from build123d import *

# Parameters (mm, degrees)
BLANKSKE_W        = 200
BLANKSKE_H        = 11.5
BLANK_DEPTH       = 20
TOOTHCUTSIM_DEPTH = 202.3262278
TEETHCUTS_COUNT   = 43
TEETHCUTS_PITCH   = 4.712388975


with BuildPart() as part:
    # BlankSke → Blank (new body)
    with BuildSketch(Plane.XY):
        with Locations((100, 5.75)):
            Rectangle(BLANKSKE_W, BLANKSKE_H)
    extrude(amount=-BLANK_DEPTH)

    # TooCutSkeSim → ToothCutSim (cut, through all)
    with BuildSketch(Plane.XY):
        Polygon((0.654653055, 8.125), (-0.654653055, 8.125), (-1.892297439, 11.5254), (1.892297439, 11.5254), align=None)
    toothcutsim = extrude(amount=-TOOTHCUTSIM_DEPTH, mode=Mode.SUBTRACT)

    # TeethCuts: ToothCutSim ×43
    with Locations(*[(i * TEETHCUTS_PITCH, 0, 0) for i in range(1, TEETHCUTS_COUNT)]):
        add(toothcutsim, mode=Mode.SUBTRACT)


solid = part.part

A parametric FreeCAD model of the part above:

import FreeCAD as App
import Part
import Sketcher

V = App.Vector
Q = App.Units.Quantity


def add_polygon(sketch, points):
    """Adds a closed chain of lines whose ends are joined by coincident constraints."""
    first, n = sketch.GeometryCount, len(points)
    for a, b in zip(points, points[1:] + points[:1]):
        sketch.addGeometry(Part.LineSegment(App.Vector(*a, 0), App.Vector(*b, 0)), False)
    for i in range(n):
        sketch.addConstraint(Sketcher.Constraint("Coincident", first + i, 2, first + (i + 1) % n, 1))

doc = App.newDocument("Part")
params = doc.addObject("Spreadsheet::Sheet", "Params")
for row, (alias, value) in enumerate([
    ("sketch1_width", "200 mm"),
    ("sketch1_height", "11.5 mm"),
    ("pad1_length", "20 mm"),
    ("linearpattern_pitch", "4.712389 mm"),
], start=1):
    params.set(f"A{row}", alias)
    params.set(f"B{row}", "=" + value)
    params.setAlias(f"B{row}", alias)

body = doc.addObject("PartDesign::Body", "Body")

sketch1 = body.newObject("Sketcher::SketchObject", "Sketch")
sketch1.AttachmentSupport = (doc.getObject("XY_Plane"), [""])
sketch1.MapMode = "FlatFace"
add_polygon(sketch1, [(0, 12), (0, 0), (200, 0), (200, 12)])
sketch1.addConstraint([
    Sketcher.Constraint("Vertical", 0),
    Sketcher.Constraint("Horizontal", 1),
    Sketcher.Constraint("Vertical", 2),
    Sketcher.Constraint("Horizontal", 3),
    Sketcher.Constraint("Coincident", 0, 2, -1, 1),
    Sketcher.Constraint("DistanceX", 1, 1, 1, 2, Q("200 mm")),
    Sketcher.Constraint("DistanceY", 0, 2, 0, 1, Q("11.5 mm")),
])
sketch1.setExpression("Constraints[9]", "Params.sketch1_width")
sketch1.setExpression("Constraints[10]", "Params.sketch1_height")
pad1 = body.newObject("PartDesign::Pad", "Pad")
pad1.Profile = sketch1
pad1.setExpression("Length", "Params.pad1_length")
pad1.Reversed = True

sketch2 = body.newObject("Sketcher::SketchObject", "Sketch001")
sketch2.AttachmentSupport = (doc.getObject("XY_Plane"), [""])
sketch2.MapMode = "FlatFace"
add_polygon(sketch2, [(-0.7, 8.1), (0.7, 8.1), (1.9, 11.5), (-1.9, 11.5)])
sketch2.addConstraint([
    Sketcher.Constraint("Horizontal", 0),
    Sketcher.Constraint("Horizontal", 2),
    Sketcher.Constraint("Equal", 1, 3),
    Sketcher.Constraint("Angle", 1, Q("70 deg")),
    Sketcher.Constraint("DistanceY", -1, 1, 0, 2, Q("8.125 mm")),
    Sketcher.Constraint("DistanceY", -1, 1, 1, 2, Q("11.5254 mm")),
    Sketcher.Constraint("DistanceX", 0, 1, 0, 2, Q("1.309306 mm")),
    Sketcher.Constraint("DistanceX", -1, 1, 0, 2, Q("0.654653 mm")),
])
pocket1 = body.newObject("PartDesign::Pocket", "Pocket")
pocket1.Profile = sketch2
pocket1.Type = "ThroughAll"
doc.recompute()

linearpattern = body.newObject("PartDesign::LinearPattern", "LinearPattern")
linearpattern.Originals = [pocket1]
linearpattern.Direction = (doc.getObject("X_Axis"), [""])
linearpattern.Mode = "offset"
linearpattern.setExpression("Offset", "Params.linearpattern_pitch")
linearpattern.Occurrences = 43
body.Tip = linearpattern

doc.recompute()
